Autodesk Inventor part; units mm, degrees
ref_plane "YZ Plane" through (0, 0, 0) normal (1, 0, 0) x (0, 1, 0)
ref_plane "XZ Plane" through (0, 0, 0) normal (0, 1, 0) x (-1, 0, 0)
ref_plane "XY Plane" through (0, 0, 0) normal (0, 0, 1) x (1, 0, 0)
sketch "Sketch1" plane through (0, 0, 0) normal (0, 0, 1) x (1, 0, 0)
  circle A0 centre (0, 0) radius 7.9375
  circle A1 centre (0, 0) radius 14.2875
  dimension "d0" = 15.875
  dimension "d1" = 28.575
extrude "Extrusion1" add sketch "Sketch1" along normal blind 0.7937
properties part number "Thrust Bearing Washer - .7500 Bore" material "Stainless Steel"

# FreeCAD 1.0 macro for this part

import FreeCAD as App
import Part
import Sketcher
from FreeCAD import Vector
Q = App.Units.Quantity

doc = App.newDocument("Part")
body = doc.addObject("PartDesign::Body", "Body")

# Sketch on XY plane
sketch1 = doc.addObject("Sketcher::SketchObject", "Sketch")
body.addObject(sketch1)
sketch1.AttachmentSupport = (doc.XY_Plane, [""])
sketch1.MapMode = "FlatFace"
sketch1.addGeometry(Part.Circle(Vector(0, 0, 0), Vector(0, 0, 1), 14), False)
sketch1.addGeometry(Part.Circle(Vector(0, 0, 0), Vector(0, 0, 1), 8), False)
sketch1.addConstraint(Sketcher.Constraint("Coincident", 0, 3, -1, 1))
sketch1.addConstraint(Sketcher.Constraint("Coincident", 1, 3, -1, 1))
sketch1.addConstraint(Sketcher.Constraint("Diameter", 0, Q("1.125 in")))
sketch1.addConstraint(Sketcher.Constraint("Diameter", 1, Q("0.625 in")))
pad1 = doc.addObject("PartDesign::Pad", "Pad")
body.addObject(pad1)
pad1.Profile = sketch1
pad1.Length = Q("0.031248 in")

doc.recompute()
